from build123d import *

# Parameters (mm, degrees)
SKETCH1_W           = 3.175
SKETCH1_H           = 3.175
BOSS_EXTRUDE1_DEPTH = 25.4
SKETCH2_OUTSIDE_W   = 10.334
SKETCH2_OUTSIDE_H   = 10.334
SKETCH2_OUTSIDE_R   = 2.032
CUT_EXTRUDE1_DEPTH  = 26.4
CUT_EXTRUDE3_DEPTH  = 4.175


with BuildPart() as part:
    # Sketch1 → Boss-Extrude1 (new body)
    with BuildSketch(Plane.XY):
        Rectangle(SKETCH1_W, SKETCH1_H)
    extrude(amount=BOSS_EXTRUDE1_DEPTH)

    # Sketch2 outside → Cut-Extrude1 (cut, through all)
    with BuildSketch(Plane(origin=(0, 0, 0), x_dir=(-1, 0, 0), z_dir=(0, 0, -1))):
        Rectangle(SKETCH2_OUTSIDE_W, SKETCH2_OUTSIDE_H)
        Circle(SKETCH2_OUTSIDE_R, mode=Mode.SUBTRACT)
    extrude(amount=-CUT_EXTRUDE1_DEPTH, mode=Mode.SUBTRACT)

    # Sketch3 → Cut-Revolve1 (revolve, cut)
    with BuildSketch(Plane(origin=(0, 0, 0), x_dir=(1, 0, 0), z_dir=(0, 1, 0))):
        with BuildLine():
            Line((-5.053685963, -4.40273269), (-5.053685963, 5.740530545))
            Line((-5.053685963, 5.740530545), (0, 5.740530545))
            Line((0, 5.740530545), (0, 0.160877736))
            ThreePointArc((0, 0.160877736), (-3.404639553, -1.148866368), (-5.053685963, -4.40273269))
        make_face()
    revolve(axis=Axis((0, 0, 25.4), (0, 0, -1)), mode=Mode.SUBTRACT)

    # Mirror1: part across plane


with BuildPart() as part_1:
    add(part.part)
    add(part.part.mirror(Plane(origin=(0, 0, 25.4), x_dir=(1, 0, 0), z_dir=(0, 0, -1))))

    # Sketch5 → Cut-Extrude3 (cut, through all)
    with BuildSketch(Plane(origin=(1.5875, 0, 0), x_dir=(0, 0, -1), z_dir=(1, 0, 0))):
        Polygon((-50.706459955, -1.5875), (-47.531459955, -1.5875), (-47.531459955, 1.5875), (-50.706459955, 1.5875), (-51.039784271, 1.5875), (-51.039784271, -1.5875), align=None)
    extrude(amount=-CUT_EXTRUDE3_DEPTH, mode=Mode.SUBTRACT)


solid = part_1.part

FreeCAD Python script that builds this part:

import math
import FreeCAD as App
import Part
import Sketcher
Q = App.Units.Quantity


def add_polygon(sketch, points):
    """Adds a closed chain of lines whose ends are joined by coincident constraints."""
    first, n = sketch.GeometryCount, len(points)
    for a, b in zip(points, points[1:] + points[:1]):
        sketch.addGeometry(Part.LineSegment(App.Vector(*a, 0), App.Vector(*b, 0)), False)
    for i in range(n):
        sketch.addConstraint(Sketcher.Constraint("Coincident", first + i, 2, first + (i + 1) % n, 1))

doc = App.newDocument("Part")
params = doc.addObject("Spreadsheet::Sheet", "Params")
for row, (alias, value) in enumerate([
    ("sketch1_width", "0.125 in"),
    ("pad1_length", "1 in"),
    ("sketch2_diameter", "0.16 in"),
    ("sketch3_radius", "0.2 in"),
    ("groove_angle", "360 deg"),
    ("sketch4_width", "0.125 in"),
], start=1):
    params.set(f"A{row}", alias)
    params.set(f"B{row}", "=" + value)
    params.setAlias(f"B{row}", alias)

body = doc.addObject("PartDesign::Body", "Body")

sketch1 = body.newObject("Sketcher::SketchObject", "Sketch")
sketch1.AttachmentSupport = (doc.getObject("XY_Plane"), [""])
sketch1.MapMode = "FlatFace"
add_polygon(sketch1, [(-1.6, 1.6), (-1.6, -1.6), (1.6, -1.6), (1.6, 1.6)])
sketch1.addConstraint([
    Sketcher.Constraint("Vertical", 0),
    Sketcher.Constraint("Horizontal", 1),
    Sketcher.Constraint("Vertical", 2),
    Sketcher.Constraint("Horizontal", 3),
    Sketcher.Constraint("Symmetric", 0, 2, 2, 2, -1, 1),
    Sketcher.Constraint("Equal", 3, 0),
    Sketcher.Constraint("DistanceX", 1, 1, 1, 2, Q("0.125 in")),
])
sketch1.setExpression("Constraints[10]", "Params.sketch1_width")
pad1 = body.newObject("PartDesign::Pad", "Pad")
pad1.Profile = sketch1
pad1.setExpression("Length", "Params.pad1_length")

sketch2 = body.newObject("Sketcher::SketchObject", "Sketch001")
sketch2.AttachmentSupport = (doc.getObject("XY_Plane"), [""])
sketch2.MapMode = "FlatFace"
add_polygon(sketch2, [(5.2, 5.2), (5.2, -5.2), (-5.2, -5.2), (-5.2, 5.2)])
sketch2.addGeometry(Part.Circle(App.Vector(0, 0, 0), App.Vector(0, 0, 1), 2), False)
sketch2.addConstraint([
    Sketcher.Constraint("Vertical", 0),
    Sketcher.Constraint("Horizontal", 1),
    Sketcher.Constraint("Vertical", 2),
    Sketcher.Constraint("Horizontal", 3),
    Sketcher.Constraint("Coincident", 4, 3, -1, 1),
    Sketcher.Constraint("Symmetric", 0, 2, 2, 2, -1, 1),
    Sketcher.Constraint("Equal", 3, 0),
    Sketcher.Constraint("Diameter", 4, Q("0.16 in")),
    Sketcher.Constraint("DistanceX", 1, 2, 1, 1, 10.334),
])
sketch2.setExpression("Constraints[11]", "Params.sketch2_diameter")
pocket1 = body.newObject("PartDesign::Pocket", "Pocket")
pocket1.Profile = sketch2
pocket1.Type = "ThroughAll"
pocket1.Reversed = True

sketch3 = body.newObject("Sketcher::SketchObject", "Sketch002")
sketch3.AttachmentSupport = (doc.getObject("XZ_Plane"), [""])
sketch3.MapMode = "FlatFace"
sketch3.addGeometry([
    Part.LineSegment(App.Vector(-5, -6, 0), App.Vector(-5, 4, 0)),
    Part.ArcOfCircle(Part.Circle(App.Vector(0, 5, 0), App.Vector(0, 0, 1), 5), math.radians(-174), math.radians(-90)),
    Part.LineSegment(App.Vector(0, 0, 0), App.Vector(0, -6, 0)),
    Part.LineSegment(App.Vector(0, -6, 0), App.Vector(-5, -6, 0)),
], False)
sketch3.addConstraint([
    Sketcher.Constraint("Coincident", 0, 2, 1, 1),
    Sketcher.Constraint("Coincident", 1, 2, 2, 1),
    Sketcher.Constraint("Coincident", 2, 2, 3, 1),
    Sketcher.Constraint("Coincident", 3, 2, 0, 1),
    Sketcher.Constraint("Vertical", 0),
    Sketcher.Constraint("Vertical", 2),
    Sketcher.Constraint("Horizontal", 3),
    Sketcher.Constraint("PointOnObject", 1, 3, -2),
    Sketcher.Constraint("PointOnObject", 1, 2, -2),
    Sketcher.Constraint("Radius", 1, Q("0.2 in")),
    Sketcher.Constraint("DistanceX", 3, 2, 3, 1, 5.053686),
    Sketcher.Constraint("DistanceY", 0, 1, 0, 2, 10.143263),
    Sketcher.Constraint("DistanceY", 2, 2, -1, 1, 5.740531),
])
sketch3.setExpression("Constraints[9]", "Params.sketch3_radius")
groove = body.newObject("PartDesign::Groove", "Groove")
groove.Profile = sketch3
groove.ReferenceAxis = (sketch3, ["V_Axis"])
groove.setExpression("Angle", "Params.groove_angle")
body2 = doc.addObject("PartDesign::Body", "Body001")
doc.recompute()

body2.BaseFeature = body
doc.recompute()

mirroring = doc.addObject("Part::Mirroring", "Mirroring")
mirroring.Source = body
mirroring.Base = App.Vector(0, 0, 25.4)
mirroring.Normal = App.Vector(0, 0, -1)
body3 = doc.addObject("PartDesign::Body", "Body002")
body3.BaseFeature = mirroring
boolean = body2.newObject("PartDesign::Boolean", "Boolean")
boolean.Type = "Fuse"
boolean.addObjects([body3])
doc.recompute()

sketch4 = body2.newObject("Sketcher::SketchObject", "Sketch003")
sketch4.AttachmentSupport = (doc.getObject("YZ_Plane001"), [""])
sketch4.MapMode = "FlatFace"
sketch4.AttachmentOffset = App.Placement(App.Vector(0, 0, 0.0625 * 25.4), App.Rotation())
add_polygon(sketch4, [(-1.6, 47.5), (1.6, 47.5), (1.6, 51), (-1.6, 51)])
sketch4.addConstraint([
    Sketcher.Constraint("Horizontal", 0),
    Sketcher.Constraint("Vertical", 1),
    Sketcher.Constraint("Horizontal", 2),
    Sketcher.Constraint("Vertical", 3),
    Sketcher.Constraint("DistanceX", 0, 1, 0, 2, Q("0.125 in")),
    Sketcher.Constraint("DistanceX", -1, 1, 0, 2, Q("0.0625 in")),
    Sketcher.Constraint("DistanceY", 1, 1, 1, 2, 3.508324),
    Sketcher.Constraint("DistanceY", -1, 1, 0, 2, 47.53146),
])
sketch4.setExpression("Constraints[8]", "Params.sketch4_width")
pocket2 = body2.newObject("PartDesign::Pocket", "Pocket001")
pocket2.Profile = sketch4
pocket2.Type = "ThroughAll"
mirroring.Visibility = False

doc.recompute()
